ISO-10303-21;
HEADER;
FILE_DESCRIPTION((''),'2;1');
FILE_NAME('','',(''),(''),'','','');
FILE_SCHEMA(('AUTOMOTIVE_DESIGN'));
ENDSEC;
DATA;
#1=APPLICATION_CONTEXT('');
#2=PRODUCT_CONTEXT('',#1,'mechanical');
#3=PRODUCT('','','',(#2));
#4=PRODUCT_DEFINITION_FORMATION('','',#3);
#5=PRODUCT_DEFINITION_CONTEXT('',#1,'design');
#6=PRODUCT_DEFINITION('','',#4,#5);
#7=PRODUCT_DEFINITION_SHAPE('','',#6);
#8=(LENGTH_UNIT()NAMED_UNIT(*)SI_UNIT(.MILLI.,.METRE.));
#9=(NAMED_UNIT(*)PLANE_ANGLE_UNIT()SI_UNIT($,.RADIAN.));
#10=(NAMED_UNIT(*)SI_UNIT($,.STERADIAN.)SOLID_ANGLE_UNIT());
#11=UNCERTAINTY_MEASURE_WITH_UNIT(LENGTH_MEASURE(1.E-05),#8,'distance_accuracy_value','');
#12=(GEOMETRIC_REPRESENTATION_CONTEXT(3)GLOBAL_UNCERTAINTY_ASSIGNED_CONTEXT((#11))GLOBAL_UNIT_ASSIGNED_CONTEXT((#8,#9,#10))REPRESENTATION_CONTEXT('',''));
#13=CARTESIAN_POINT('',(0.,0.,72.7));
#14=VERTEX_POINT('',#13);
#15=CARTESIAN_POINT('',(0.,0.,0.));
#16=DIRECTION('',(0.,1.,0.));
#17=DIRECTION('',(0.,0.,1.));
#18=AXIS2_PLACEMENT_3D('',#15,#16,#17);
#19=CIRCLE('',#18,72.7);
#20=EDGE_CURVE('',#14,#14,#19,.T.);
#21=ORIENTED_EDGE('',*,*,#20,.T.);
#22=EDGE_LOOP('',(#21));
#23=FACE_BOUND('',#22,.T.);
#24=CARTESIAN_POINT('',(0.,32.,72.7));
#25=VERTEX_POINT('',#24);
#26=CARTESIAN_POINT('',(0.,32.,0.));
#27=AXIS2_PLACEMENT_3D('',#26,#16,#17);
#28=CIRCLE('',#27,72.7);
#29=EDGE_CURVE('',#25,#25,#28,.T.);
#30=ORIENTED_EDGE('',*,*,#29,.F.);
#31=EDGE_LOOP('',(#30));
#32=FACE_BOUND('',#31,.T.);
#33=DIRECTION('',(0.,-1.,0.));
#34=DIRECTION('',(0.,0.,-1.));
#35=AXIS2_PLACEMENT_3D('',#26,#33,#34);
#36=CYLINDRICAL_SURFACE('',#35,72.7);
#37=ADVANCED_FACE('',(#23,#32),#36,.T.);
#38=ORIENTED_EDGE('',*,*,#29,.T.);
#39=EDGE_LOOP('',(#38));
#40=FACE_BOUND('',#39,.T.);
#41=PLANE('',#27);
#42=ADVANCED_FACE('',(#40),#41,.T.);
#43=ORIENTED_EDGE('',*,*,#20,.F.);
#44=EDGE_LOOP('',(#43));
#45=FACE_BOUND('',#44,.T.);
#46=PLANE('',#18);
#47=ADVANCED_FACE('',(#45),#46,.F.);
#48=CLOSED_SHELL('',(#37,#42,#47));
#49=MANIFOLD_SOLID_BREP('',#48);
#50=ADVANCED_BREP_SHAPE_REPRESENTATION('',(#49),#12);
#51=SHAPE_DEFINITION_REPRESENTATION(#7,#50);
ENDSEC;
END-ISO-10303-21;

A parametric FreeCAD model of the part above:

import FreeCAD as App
import Part
import Sketcher
from FreeCAD import Vector
Q = App.Units.Quantity

doc = App.newDocument("Part")
params = doc.addObject("Spreadsheet::Sheet", "Params")
for row, (alias, value) in enumerate([
    ("sketch1_diameter", "145.4 mm"),
    ("pad1_length", "32 mm"),
], start=1):
    params.set(f"A{row}", alias)
    params.set(f"B{row}", "=" + value)
    params.setAlias(f"B{row}", alias)

body = doc.addObject("PartDesign::Body", "Body")

sketch1 = body.newObject("Sketcher::SketchObject", "Sketch")
sketch1.AttachmentSupport = (doc.getObject("XZ_Plane"), [""])
sketch1.MapMode = "FlatFace"
sketch1.addGeometry(Part.Circle(Vector(0, 0, 0), Vector(0, 0, 1), 73), False)
sketch1.addConstraint([
    Sketcher.Constraint("Coincident", 0, 3, -1, 1),
    Sketcher.Constraint("Diameter", 0, Q("145.4 mm")),
])
sketch1.setExpression("Constraints[1]", "Params.sketch1_diameter")
pad1 = body.newObject("PartDesign::Pad", "Pad")
pad1.Profile = sketch1
pad1.setExpression("Length", "Params.pad1_length")
pad1.Reversed = True

doc.recompute()
